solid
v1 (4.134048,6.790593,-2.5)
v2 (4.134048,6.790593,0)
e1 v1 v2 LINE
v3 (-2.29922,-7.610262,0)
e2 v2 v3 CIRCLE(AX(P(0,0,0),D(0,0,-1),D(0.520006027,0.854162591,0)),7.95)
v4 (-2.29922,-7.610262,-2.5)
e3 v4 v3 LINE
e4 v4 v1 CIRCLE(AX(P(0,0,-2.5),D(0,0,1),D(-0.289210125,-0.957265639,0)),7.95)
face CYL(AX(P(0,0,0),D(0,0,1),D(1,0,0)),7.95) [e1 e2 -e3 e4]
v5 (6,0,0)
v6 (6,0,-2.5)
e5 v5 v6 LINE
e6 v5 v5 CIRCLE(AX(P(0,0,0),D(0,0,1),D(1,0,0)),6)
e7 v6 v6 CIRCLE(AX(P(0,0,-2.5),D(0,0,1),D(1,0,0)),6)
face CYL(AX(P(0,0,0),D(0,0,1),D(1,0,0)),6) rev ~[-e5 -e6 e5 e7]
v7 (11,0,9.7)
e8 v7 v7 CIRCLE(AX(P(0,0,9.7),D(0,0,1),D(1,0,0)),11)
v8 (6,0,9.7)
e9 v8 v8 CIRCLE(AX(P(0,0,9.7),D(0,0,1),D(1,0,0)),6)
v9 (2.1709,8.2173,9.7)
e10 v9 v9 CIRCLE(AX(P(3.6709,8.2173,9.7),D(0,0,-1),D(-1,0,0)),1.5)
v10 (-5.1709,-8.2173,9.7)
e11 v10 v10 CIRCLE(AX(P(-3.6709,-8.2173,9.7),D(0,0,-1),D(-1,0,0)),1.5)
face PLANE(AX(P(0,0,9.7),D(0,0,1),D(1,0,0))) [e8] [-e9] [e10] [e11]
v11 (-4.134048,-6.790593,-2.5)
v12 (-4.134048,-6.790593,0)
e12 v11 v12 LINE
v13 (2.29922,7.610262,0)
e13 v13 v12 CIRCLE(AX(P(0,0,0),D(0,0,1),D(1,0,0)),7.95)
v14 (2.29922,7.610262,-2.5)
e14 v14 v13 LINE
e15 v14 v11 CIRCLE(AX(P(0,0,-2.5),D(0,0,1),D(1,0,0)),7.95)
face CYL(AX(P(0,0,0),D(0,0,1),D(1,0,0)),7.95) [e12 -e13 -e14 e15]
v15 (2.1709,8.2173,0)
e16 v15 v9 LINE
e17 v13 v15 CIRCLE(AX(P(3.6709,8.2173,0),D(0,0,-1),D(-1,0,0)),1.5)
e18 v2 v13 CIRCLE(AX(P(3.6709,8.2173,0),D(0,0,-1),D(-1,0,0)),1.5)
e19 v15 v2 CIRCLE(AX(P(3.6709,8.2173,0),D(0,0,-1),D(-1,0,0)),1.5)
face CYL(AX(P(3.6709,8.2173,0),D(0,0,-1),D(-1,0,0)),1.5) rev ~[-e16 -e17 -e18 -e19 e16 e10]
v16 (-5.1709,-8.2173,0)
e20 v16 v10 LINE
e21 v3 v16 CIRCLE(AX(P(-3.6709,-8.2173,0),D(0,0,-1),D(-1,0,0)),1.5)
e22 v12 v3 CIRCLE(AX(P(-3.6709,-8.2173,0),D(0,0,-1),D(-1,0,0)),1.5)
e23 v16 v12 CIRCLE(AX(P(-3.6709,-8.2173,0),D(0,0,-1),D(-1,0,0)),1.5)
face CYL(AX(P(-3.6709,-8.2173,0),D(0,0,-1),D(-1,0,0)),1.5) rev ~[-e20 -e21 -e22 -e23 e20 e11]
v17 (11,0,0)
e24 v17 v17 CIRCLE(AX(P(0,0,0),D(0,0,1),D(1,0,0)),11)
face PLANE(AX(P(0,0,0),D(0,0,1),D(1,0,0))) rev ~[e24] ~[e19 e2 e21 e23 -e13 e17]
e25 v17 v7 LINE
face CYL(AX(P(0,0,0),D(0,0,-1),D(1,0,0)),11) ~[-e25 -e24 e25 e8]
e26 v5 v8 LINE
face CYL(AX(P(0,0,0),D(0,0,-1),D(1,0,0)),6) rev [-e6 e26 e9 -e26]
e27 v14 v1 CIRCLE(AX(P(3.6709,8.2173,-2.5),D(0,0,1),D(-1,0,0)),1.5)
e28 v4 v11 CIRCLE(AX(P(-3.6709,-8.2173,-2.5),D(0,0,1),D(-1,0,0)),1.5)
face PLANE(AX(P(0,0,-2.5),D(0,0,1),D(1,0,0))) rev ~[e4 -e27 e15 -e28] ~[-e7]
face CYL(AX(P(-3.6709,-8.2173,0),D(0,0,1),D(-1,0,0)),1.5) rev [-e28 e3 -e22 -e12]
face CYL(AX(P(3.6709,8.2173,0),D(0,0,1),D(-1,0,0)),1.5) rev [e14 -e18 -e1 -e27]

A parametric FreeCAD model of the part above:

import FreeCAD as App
import Part
import Sketcher
Q = App.Units.Quantity

doc = App.newDocument("Part")
body = doc.addObject("PartDesign::Body", "Body")

sketch1 = body.newObject("Sketcher::SketchObject", "Sketch")
sketch1.AttachmentSupport = (doc.getObject("XY_Plane"), [""])
sketch1.MapMode = "FlatFace"
sketch1.addGeometry(Part.Circle(App.Vector(0, 0, 0), App.Vector(0, 0, 1), 8), False)
sketch1.addGeometry(Part.Circle(App.Vector(0, 0, 0), App.Vector(0, 0, 1), 6), False)
sketch1.addConstraint(Sketcher.Constraint("Coincident", 0, 3, -1, 1))
sketch1.addConstraint(Sketcher.Constraint("Coincident", 1, 3, -1, 1))
sketch1.addConstraint(Sketcher.Constraint("Diameter", 1, Q("12 mm")))
sketch1.addConstraint(Sketcher.Constraint("Diameter", 0, Q("15.9 mm")))
pad1 = body.newObject("PartDesign::Pad", "Pad")
pad1.Profile = sketch1
pad1.Length = 2.5
pad1.Reversed = True

sketch2 = body.newObject("Sketcher::SketchObject", "Sketch001")
sketch2.AttachmentSupport = (doc.getObject("XY_Plane"), [""])
sketch2.MapMode = "FlatFace"
sketch2.addGeometry(Part.Circle(App.Vector(0, 0, 0), App.Vector(0, 0, 1), 11), False)
sketch2.addGeometry(Part.Circle(App.Vector(0, 0, 0), App.Vector(0, 0, 1), 6), False)
sketch2.addConstraint(Sketcher.Constraint("Coincident", 0, 3, -1, 1))
sketch2.addConstraint(Sketcher.Constraint("Coincident", 1, 3, -1, 1))
sketch2.addConstraint(Sketcher.Constraint("Diameter", 0, Q("22 mm")))
sketch2.addConstraint(Sketcher.Constraint("Diameter", 1, Q("12 mm")))
pad2 = body.newObject("PartDesign::Pad", "Pad001")
pad2.Profile = sketch2
pad2.Length = 9.7

sketch3 = body.newObject("Sketcher::SketchObject", "Sketch002")
sketch3.AttachmentSupport = (doc.getObject("XY_Plane"), [""])
sketch3.MapMode = "FlatFace"
sketch3.addGeometry(Part.Circle(App.Vector(-3.7, -8.2, 0), App.Vector(0, 0, 1), 1.5), False)
sketch3.addGeometry(Part.Circle(App.Vector(3.7, 8.2, 0), App.Vector(0, 0, 1), 1.5), False)
sketch3.addConstraint(Sketcher.Constraint("Equal", 0, 1))
sketch3.addConstraint(Sketcher.Constraint("Symmetric", 0, 3, 1, 3, -1, 1))
sketch3.addConstraint(Sketcher.Constraint("Diameter", 0, Q("3 mm")))
sketch3.addConstraint(Sketcher.Constraint("DistanceX", 0, 3, -1, 1, Q("3.671 mm")))
sketch3.addConstraint(Sketcher.Constraint("DistanceY", 0, 3, -1, 1, Q("8.2173 mm")))
pocket1 = body.newObject("PartDesign::Pocket", "Pocket")
pocket1.Profile = sketch3
pocket1.Length = 30
pocket1.Midplane = True

doc.recompute()
